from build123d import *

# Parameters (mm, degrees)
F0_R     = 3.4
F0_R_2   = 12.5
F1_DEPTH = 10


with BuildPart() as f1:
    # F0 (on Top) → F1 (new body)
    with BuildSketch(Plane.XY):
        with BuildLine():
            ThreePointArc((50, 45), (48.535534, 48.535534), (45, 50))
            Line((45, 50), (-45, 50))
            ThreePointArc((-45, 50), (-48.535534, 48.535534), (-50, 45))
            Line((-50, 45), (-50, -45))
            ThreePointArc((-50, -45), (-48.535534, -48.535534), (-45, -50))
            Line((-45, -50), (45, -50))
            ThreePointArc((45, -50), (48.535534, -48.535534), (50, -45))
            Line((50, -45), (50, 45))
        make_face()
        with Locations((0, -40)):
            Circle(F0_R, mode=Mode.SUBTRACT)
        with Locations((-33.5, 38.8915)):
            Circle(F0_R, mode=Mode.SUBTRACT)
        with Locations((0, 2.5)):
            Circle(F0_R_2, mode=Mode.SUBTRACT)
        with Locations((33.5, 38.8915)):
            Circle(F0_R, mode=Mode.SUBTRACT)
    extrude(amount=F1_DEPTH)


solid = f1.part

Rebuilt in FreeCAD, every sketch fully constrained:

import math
import FreeCAD as App
import Part
import Sketcher

doc = App.newDocument("Part")
body = doc.addObject("PartDesign::Body", "Body")

# Sketch on XY plane
sketch1 = body.newObject("Sketcher::SketchObject", "Sketch")
sketch1.AttachmentSupport = (doc.getObject("XY_Plane"), [""])
sketch1.MapMode = "FlatFace"
sketch1.addGeometry([
    Part.ArcOfCircle(Part.Circle(App.Vector(45, 45, 0), App.Vector(0, 0, 1), 5), math.radians(0), math.radians(90)),  # 0
    Part.LineSegment(App.Vector(45, 50, 0), App.Vector(-45, 50, 0)),  # 1
    Part.ArcOfCircle(Part.Circle(App.Vector(-45, 45, 0), App.Vector(0, 0, 1), 5), math.radians(90), math.radians(180)),  # 2
    Part.LineSegment(App.Vector(-50, 45, 0), App.Vector(-50, -45, 0)),  # 3
    Part.ArcOfCircle(Part.Circle(App.Vector(-45, -45, 0), App.Vector(0, 0, 1), 5), math.radians(180), math.radians(270)),  # 4
    Part.LineSegment(App.Vector(-45, -50, 0), App.Vector(45, -50, 0)),  # 5
    Part.ArcOfCircle(Part.Circle(App.Vector(45, -45, 0), App.Vector(0, 0, 1), 5), math.radians(-90), math.radians(0)),  # 6
    Part.LineSegment(App.Vector(50, -45, 0), App.Vector(50, 45, 0)),  # 7
    Part.Circle(App.Vector(0, -40, 0), App.Vector(0, 0, 1), 3.4),  # 8
    Part.Circle(App.Vector(-33.5, 38.9, 0), App.Vector(0, 0, 1), 3.4),  # 9
    Part.Circle(App.Vector(0, 2.5, 0), App.Vector(0, 0, 1), 12.5),  # 10
    Part.Circle(App.Vector(33.5, 38.9, 0), App.Vector(0, 0, 1), 3.4),  # 11
], False)
sketch1.addConstraint([
    Sketcher.Constraint("Tangent", 0, 2, 1, 1),
    Sketcher.Constraint("Tangent", 1, 2, 2, 1),
    Sketcher.Constraint("Tangent", 2, 2, 3, 1),
    Sketcher.Constraint("Tangent", 3, 2, 4, 1),
    Sketcher.Constraint("Tangent", 4, 2, 5, 1),
    Sketcher.Constraint("Tangent", 5, 2, 6, 1),
    Sketcher.Constraint("Tangent", 6, 2, 7, 1),
    Sketcher.Constraint("Tangent", 7, 2, 0, 1),
    Sketcher.Constraint("Horizontal", 1),
    Sketcher.Constraint("Vertical", 3),
    Sketcher.Constraint("Horizontal", 5),
    Sketcher.Constraint("Vertical", 7),
    Sketcher.Constraint("Equal", 0, 2),
    Sketcher.Constraint("Equal", 2, 4),
    Sketcher.Constraint("Equal", 4, 6),
    Sketcher.Constraint("Equal", 8, 9),
    Sketcher.Constraint("Equal", 9, 11),
    Sketcher.Constraint("Symmetric", 0, 3, 4, 3, -1, 1),
    Sketcher.Constraint("Symmetric", 9, 3, 11, 3, -2),
    Sketcher.Constraint("PointOnObject", 8, 3, -2),
    Sketcher.Constraint("PointOnObject", 10, 3, -2),
    Sketcher.Constraint("Equal", 5, 3),
    Sketcher.Constraint("Diameter", 10, 25.0),
    Sketcher.Constraint("Radius", 0, 5.0),
    Sketcher.Constraint("Diameter", 8, 6.8),
    Sketcher.Constraint("DistanceX", 1, 2, 1, 1, 90.0),
    Sketcher.Constraint("DistanceY", 8, 3, -1, 1, 40.0),
    Sketcher.Constraint("DistanceX", 9, 3, 11, 3, 67.0),
    Sketcher.Constraint("DistanceY", -1, 1, 10, 3, 2.5),
    Sketcher.Constraint("DistanceY", -1, 1, 9, 3, 38.8915),
])
pad1 = body.newObject("PartDesign::Pad", "Pad")
pad1.Profile = sketch1
pad1.Length = 10

doc.recompute()
